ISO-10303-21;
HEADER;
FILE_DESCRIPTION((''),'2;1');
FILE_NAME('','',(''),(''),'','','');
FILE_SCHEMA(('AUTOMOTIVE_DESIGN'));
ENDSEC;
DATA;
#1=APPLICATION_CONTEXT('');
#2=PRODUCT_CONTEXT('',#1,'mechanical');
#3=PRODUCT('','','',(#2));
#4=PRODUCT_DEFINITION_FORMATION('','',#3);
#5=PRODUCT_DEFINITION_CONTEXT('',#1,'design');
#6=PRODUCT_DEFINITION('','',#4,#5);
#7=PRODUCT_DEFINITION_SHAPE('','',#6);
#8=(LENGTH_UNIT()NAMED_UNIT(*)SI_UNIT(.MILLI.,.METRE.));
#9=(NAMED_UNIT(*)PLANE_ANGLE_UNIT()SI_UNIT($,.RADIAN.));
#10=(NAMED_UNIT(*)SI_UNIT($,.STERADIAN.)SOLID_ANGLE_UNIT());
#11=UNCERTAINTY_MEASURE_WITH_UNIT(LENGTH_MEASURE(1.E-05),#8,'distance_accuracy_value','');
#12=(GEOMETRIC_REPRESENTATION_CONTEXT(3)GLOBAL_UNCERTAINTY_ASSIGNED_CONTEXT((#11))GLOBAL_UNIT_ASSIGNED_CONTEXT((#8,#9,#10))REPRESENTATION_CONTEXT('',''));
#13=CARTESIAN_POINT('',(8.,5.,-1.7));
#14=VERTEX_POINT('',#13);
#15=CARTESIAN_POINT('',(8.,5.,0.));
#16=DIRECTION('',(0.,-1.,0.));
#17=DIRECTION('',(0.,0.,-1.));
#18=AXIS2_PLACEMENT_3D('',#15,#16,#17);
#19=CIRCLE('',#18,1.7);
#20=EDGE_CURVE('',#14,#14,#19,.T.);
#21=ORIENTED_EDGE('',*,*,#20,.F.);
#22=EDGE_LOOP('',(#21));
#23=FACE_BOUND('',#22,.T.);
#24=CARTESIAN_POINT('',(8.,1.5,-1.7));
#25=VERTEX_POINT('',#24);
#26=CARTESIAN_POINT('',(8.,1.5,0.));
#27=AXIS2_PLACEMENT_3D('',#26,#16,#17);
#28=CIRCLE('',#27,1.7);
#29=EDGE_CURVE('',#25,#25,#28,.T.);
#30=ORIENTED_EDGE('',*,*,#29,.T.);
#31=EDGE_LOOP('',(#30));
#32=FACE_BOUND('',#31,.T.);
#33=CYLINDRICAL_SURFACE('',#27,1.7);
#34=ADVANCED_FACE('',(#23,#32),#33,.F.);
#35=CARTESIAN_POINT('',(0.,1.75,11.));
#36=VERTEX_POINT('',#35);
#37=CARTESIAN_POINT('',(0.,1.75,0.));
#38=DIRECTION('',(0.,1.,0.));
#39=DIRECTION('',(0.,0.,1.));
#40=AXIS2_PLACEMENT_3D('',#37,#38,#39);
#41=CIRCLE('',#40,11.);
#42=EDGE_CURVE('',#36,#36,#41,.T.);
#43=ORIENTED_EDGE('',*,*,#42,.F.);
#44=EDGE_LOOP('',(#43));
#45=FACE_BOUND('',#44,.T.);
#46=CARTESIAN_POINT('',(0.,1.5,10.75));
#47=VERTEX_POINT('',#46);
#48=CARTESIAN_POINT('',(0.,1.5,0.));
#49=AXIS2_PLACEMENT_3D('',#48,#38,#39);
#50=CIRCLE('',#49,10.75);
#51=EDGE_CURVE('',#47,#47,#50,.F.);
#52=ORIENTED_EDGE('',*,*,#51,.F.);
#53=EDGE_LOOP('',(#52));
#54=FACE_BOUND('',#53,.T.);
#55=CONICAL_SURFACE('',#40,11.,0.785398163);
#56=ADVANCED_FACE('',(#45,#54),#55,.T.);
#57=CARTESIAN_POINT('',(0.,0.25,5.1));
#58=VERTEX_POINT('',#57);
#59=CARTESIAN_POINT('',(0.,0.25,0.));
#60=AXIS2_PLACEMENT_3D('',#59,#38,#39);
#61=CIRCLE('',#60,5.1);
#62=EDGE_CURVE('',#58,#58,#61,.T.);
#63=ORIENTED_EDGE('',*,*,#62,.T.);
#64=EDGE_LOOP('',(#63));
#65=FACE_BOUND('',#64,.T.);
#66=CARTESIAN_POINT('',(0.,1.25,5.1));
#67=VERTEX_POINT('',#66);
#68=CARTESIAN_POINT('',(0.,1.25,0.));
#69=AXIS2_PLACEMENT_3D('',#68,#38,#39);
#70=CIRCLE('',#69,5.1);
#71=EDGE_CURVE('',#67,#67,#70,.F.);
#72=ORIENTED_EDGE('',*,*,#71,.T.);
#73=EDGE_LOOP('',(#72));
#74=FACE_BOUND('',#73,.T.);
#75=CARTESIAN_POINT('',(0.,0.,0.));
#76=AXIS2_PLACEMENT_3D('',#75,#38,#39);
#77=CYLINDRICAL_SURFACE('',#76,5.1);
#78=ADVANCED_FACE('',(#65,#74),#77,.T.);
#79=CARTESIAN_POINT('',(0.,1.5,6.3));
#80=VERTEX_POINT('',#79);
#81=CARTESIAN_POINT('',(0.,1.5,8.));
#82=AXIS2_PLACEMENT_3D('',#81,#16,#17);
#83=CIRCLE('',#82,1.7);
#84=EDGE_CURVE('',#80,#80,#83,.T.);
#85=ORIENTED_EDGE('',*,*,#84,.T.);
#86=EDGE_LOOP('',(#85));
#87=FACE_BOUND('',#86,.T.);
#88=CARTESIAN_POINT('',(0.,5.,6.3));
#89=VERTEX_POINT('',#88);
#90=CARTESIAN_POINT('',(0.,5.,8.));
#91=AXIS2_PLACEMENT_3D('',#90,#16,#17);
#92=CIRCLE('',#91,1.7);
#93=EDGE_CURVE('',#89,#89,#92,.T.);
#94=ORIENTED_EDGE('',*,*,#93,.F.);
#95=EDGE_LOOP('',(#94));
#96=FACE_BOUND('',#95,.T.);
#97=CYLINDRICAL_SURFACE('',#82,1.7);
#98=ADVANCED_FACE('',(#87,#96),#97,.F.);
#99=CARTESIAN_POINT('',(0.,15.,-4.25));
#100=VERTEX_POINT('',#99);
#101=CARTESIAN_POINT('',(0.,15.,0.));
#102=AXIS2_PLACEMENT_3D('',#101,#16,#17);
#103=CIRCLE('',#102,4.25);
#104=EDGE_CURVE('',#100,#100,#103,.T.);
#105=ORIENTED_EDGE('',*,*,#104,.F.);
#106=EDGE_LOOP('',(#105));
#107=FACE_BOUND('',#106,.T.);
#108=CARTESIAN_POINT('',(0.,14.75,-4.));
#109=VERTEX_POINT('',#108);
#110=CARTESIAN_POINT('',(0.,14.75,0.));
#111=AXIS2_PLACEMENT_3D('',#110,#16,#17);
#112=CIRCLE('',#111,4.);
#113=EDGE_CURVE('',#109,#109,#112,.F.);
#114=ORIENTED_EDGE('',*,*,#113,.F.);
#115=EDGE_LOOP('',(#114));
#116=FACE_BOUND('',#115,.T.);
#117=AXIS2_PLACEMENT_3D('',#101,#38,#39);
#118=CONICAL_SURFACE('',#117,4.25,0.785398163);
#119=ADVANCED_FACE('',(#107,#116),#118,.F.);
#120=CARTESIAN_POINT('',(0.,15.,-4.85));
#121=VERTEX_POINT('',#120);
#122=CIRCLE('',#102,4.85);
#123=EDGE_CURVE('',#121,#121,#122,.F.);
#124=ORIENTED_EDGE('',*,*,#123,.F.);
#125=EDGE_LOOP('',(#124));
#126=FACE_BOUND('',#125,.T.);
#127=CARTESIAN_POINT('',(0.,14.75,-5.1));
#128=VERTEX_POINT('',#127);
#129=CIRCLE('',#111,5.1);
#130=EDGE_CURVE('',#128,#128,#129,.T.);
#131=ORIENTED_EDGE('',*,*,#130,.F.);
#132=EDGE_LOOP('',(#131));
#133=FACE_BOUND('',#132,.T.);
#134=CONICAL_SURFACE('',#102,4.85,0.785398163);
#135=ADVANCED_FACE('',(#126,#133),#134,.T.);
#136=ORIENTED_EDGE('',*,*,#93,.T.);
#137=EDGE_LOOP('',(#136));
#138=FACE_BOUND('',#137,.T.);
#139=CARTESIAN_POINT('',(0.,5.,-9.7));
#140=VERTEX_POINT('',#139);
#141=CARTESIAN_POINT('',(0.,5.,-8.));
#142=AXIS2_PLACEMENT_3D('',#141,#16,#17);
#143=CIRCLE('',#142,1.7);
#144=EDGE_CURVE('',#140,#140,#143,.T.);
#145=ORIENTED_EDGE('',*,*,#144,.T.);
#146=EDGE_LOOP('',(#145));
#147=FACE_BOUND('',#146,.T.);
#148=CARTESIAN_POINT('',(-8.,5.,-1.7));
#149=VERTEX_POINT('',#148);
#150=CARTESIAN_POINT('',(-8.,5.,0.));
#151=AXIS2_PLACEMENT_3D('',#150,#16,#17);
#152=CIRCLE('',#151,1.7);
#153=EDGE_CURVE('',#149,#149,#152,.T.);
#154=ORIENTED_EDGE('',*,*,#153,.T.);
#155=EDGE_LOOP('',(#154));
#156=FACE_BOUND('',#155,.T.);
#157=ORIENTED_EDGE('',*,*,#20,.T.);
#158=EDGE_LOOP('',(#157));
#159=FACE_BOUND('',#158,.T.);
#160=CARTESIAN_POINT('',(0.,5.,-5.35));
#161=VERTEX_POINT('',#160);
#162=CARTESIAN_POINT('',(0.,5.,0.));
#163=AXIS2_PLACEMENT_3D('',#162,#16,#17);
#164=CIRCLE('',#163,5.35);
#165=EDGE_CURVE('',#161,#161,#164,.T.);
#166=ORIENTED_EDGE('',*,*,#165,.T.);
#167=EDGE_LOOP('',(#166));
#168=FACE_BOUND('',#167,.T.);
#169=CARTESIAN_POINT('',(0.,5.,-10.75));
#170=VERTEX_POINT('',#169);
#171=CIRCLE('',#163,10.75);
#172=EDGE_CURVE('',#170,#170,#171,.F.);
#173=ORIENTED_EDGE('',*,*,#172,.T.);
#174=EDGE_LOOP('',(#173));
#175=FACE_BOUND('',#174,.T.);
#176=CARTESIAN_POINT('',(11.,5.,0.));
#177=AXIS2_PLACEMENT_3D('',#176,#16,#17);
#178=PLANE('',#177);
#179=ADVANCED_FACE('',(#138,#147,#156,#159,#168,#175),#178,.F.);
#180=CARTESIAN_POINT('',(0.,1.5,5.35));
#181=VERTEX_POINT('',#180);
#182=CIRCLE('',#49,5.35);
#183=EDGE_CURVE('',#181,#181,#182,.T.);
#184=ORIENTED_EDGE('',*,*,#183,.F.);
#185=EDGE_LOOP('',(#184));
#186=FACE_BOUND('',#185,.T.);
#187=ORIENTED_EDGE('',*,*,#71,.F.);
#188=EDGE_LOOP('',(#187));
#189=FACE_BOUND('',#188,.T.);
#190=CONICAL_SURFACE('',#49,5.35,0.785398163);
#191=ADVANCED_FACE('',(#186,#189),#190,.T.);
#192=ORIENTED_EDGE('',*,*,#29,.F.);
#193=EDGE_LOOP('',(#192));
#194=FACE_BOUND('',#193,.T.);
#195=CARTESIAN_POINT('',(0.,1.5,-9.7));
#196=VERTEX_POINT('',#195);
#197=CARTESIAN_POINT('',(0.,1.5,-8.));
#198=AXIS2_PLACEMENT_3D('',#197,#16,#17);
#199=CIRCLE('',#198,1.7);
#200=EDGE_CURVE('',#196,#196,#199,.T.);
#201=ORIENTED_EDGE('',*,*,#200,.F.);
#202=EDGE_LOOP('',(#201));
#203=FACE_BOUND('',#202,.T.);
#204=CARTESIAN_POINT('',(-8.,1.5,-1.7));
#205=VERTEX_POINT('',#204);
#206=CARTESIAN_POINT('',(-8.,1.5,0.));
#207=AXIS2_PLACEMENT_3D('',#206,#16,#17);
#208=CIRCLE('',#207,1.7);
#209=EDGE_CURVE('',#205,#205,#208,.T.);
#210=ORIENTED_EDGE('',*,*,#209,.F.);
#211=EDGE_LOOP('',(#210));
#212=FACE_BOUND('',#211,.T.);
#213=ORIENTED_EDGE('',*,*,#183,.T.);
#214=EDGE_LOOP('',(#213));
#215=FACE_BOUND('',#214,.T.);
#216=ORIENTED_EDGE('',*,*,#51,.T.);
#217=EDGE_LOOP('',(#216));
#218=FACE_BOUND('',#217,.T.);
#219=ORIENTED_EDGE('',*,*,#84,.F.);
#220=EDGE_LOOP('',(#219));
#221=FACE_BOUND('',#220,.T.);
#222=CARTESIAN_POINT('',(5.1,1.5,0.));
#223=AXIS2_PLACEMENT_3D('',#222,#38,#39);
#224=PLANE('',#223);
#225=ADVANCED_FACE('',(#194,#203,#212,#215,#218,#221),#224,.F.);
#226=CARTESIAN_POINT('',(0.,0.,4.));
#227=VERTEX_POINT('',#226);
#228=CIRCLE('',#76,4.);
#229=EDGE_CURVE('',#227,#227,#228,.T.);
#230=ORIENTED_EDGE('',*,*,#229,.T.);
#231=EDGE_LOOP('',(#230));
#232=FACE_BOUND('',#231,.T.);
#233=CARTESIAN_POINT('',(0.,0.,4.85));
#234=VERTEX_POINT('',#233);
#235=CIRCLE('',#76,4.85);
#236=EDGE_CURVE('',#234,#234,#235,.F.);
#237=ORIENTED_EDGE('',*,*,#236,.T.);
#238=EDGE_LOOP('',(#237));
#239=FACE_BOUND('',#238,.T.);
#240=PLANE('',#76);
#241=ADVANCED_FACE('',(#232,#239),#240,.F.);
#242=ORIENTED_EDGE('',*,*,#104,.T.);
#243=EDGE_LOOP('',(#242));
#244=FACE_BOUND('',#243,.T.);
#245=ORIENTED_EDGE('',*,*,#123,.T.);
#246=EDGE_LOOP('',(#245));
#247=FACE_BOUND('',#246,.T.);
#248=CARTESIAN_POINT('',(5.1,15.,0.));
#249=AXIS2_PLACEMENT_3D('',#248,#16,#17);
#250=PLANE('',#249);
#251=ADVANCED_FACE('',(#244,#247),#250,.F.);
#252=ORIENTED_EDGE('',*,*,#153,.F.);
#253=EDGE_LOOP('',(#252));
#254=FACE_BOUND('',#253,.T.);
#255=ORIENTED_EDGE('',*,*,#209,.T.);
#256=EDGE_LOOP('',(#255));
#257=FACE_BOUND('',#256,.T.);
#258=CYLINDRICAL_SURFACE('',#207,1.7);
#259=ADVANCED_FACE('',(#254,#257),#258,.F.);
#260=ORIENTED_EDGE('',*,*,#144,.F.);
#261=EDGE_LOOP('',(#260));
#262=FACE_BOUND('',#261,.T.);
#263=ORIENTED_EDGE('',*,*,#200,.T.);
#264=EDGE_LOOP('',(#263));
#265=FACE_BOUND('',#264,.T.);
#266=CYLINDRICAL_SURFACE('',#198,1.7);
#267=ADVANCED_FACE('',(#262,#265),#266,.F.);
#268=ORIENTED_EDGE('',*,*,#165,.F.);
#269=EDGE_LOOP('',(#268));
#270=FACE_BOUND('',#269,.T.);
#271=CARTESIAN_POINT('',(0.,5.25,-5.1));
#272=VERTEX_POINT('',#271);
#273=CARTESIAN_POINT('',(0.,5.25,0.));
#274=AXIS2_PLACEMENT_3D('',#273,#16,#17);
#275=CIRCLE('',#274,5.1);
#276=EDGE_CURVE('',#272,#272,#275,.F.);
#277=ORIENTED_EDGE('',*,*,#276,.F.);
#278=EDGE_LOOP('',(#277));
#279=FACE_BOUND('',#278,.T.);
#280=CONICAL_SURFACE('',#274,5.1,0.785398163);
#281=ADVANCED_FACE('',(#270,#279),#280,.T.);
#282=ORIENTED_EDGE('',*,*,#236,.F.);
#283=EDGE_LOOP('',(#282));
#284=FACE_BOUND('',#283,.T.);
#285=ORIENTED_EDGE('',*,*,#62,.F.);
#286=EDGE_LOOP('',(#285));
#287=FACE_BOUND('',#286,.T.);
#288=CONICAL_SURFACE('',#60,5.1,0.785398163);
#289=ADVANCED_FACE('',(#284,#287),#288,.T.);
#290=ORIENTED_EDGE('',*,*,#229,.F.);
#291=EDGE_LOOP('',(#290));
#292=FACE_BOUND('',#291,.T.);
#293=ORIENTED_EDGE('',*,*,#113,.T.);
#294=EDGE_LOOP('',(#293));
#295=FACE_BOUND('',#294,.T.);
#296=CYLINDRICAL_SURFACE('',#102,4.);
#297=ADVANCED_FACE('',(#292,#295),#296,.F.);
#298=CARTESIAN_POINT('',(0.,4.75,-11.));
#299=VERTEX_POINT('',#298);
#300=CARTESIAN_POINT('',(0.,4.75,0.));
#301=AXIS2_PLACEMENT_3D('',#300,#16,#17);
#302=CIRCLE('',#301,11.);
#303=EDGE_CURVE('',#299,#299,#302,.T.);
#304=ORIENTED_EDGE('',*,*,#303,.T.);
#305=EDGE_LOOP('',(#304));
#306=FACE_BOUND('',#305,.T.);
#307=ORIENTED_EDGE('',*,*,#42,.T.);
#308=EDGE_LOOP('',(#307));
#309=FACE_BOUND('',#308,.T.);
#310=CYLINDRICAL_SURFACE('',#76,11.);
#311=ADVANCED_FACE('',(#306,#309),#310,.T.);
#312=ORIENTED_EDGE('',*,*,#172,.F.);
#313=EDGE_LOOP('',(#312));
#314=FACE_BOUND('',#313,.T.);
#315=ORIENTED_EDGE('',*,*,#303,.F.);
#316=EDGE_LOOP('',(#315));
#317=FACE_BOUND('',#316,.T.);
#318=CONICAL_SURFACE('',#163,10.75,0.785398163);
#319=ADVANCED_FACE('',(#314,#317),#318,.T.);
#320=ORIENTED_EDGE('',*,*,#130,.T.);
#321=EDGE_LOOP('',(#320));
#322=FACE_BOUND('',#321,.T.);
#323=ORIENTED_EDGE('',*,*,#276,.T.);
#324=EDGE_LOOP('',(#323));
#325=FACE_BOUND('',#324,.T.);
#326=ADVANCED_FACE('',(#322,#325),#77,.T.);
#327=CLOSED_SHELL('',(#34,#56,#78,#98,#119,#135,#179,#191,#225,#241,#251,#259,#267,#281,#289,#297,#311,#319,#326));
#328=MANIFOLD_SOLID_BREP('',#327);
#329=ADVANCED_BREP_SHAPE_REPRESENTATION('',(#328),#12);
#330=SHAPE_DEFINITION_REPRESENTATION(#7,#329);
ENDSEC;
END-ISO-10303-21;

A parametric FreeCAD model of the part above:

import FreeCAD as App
import Part
import Sketcher

V = App.Vector


def edges_at(feature, points):
    """Names of the edges that pass closest to the given points."""
    edges = feature.Shape.Edges
    near = lambda p: min(range(len(edges)), key=lambda i: edges[i].distToShape(Part.Vertex(*p))[0])
    return sorted({f"Edge{near(p) + 1}" for p in points})

doc = App.newDocument("Part")
body = doc.addObject("PartDesign::Body", "Body")

sketch1 = body.newObject("Sketcher::SketchObject", "Sketch")
sketch1.AttachmentSupport = (doc.getObject("XY_Plane"), [""])
sketch1.MapMode = "FlatFace"
sketch1.addGeometry([
    Part.LineSegment(V(0, 0, 0), V(5.1, 0, 0)),
    Part.LineSegment(V(5.1, 0, 0), V(5.1, 1.5, 0)),
    Part.LineSegment(V(5.1, 1.5, 0), V(11, 1.5, 0)),
    Part.LineSegment(V(11, 1.5, 0), V(11, 5, 0)),
    Part.LineSegment(V(11, 5, 0), V(5.1, 5, 0)),
    Part.LineSegment(V(5.1, 5, 0), V(5.1, 15, 0)),
    Part.LineSegment(V(5.1, 15, 0), V(0, 15, 0)),
    Part.LineSegment(V(0, 15, 0), V(0, 0, 0)),
], False)
sketch1.addConstraint([
    Sketcher.Constraint("Coincident", 0, 2, 1, 1),
    Sketcher.Constraint("Coincident", 1, 2, 2, 1),
    Sketcher.Constraint("Coincident", 2, 2, 3, 1),
    Sketcher.Constraint("Coincident", 3, 2, 4, 1),
    Sketcher.Constraint("Coincident", 4, 2, 5, 1),
    Sketcher.Constraint("Coincident", 5, 2, 6, 1),
    Sketcher.Constraint("Coincident", 6, 2, 7, 1),
    Sketcher.Constraint("Coincident", 7, 2, 0, 1),
    Sketcher.Constraint("Horizontal", 0),
    Sketcher.Constraint("Vertical", 1),
    Sketcher.Constraint("Horizontal", 2),
    Sketcher.Constraint("Vertical", 3),
    Sketcher.Constraint("Horizontal", 4),
    Sketcher.Constraint("Vertical", 5),
    Sketcher.Constraint("Horizontal", 6),
    Sketcher.Constraint("Vertical", 7),
    Sketcher.Constraint("Coincident", 7, 2, -1, 1),
    Sketcher.Constraint("Vertical", 1, 2, 4, 2),
    Sketcher.Constraint("DistanceY", 5, 1, 5, 2, 10.0),
    Sketcher.Constraint("DistanceY", 7, 2, 7, 1, 15.0),
    Sketcher.Constraint("DistanceX", 0, 1, 0, 2, 5.1),
    Sketcher.Constraint("DistanceX", 2, 1, 2, 2, 5.9),
    Sketcher.Constraint("DistanceY", 1, 1, 1, 2, 1.5),
])
revolution = body.newObject("PartDesign::Revolution", "Revolution")
revolution.Profile = sketch1
revolution.ReferenceAxis = (sketch1, ["V_Axis"])
revolution.Angle = 360

sketch2 = body.newObject("Sketcher::SketchObject", "Sketch001")
sketch2.AttachmentSupport = (doc.getObject("XZ_Plane"), [""])
sketch2.MapMode = "FlatFace"
sketch2.addGeometry(Part.Circle(V(0, 0, 0), V(0, 0, 1), 4), False)
sketch2.addConstraint([
    Sketcher.Constraint("Coincident", 0, 3, -1, 1),
    Sketcher.Constraint("Diameter", 0, 8.0),
])
pocket1 = body.newObject("PartDesign::Pocket", "Pocket")
pocket1.Profile = sketch2
pocket1.Type = "ThroughAll"
pocket1.Midplane = True

sketch3 = body.newObject("Sketcher::SketchObject", "Sketch002")
sketch3.AttachmentSupport = (doc.getObject("XZ_Plane"), [""])
sketch3.MapMode = "FlatFace"
sketch3.AttachmentOffset = App.Placement(V(0, 0, -1.5), App.Rotation())
sketch3.addGeometry([
    Part.Circle(V(0, 8, 0), V(0, 0, 1), 1.7),
    Part.Circle(V(8, 0, 0), V(0, 0, 1), 1.7),
    Part.Circle(V(0, -8, 0), V(0, 0, 1), 1.7),
    Part.Circle(V(-8, 0, 0), V(0, 0, 1), 1.7),
    Part.Circle(V(0, 0, 0), V(0, 0, 1), 1.7),
], False)
sketch3.addConstraint([
    Sketcher.Constraint("Coincident", 4, 3, -1, 1),
    Sketcher.Constraint("Equal", 0, 1),
    Sketcher.Constraint("Equal", 1, 2),
    Sketcher.Constraint("Equal", 2, 3),
    Sketcher.Constraint("Equal", 3, 4),
    Sketcher.Constraint("Symmetric", 0, 3, 2, 3, -1, 1),
    Sketcher.Constraint("Symmetric", 1, 3, 3, 3, -1, 1),
    Sketcher.Constraint("PointOnObject", 0, 3, -2),
    Sketcher.Constraint("PointOnObject", 1, 3, -1),
    Sketcher.Constraint("Diameter", 0, 3.4),
    Sketcher.Constraint("DistanceY", -1, 1, 0, 3, 8.0),
    Sketcher.Constraint("DistanceX", -1, 1, 1, 3, 8.0),
])
doc.recompute()
hole = body.newObject("PartDesign::Hole", "Hole")
hole.Profile = sketch3
hole.ThreadType = "None"
hole.Diameter = 3.4
hole.DepthType = "Dimension"
hole.Depth = 10
hole.DrillPoint = "Angled"
hole.DrillPointAngle = 118
doc.recompute()

chamfer = body.newObject("PartDesign::Chamfer", "Chamfer")
chamfer.Base = (hole, edges_at(hole, [
    (0, 15, 4),
    (0, 15, -5.1),
    (0, 5, -5.1),
    (0, 5, -11),
    (0, 1.5, -11),
    (0, 1.5, -5.1),
    (0, 0, -5.1),
]))
chamfer.Size = 0.25

doc.recompute()
